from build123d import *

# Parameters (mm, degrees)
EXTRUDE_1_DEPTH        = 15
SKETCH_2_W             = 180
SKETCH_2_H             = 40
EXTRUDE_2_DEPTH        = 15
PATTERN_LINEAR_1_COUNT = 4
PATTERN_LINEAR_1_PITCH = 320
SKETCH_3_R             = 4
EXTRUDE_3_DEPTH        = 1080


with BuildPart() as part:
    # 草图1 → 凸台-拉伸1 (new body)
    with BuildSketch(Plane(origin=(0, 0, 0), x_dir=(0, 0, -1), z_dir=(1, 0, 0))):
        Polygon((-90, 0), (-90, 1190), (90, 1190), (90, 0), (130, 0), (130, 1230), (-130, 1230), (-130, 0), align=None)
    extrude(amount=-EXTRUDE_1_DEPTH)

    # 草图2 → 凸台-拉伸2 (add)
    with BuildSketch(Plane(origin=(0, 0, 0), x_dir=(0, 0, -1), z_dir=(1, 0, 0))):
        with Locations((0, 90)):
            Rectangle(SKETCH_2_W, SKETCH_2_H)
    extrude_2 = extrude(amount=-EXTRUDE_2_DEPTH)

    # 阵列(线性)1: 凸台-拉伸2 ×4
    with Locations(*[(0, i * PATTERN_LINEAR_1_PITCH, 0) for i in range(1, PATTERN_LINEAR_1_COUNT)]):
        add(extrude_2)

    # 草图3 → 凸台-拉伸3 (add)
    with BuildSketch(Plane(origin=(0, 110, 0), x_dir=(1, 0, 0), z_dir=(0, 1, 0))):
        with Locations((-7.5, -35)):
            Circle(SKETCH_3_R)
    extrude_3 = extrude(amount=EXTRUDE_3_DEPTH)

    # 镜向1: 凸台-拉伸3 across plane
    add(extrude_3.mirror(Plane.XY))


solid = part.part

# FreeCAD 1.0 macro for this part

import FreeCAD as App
import Part
import Sketcher
from FreeCAD import Vector
Q = App.Units.Quantity


def add_polygon(sketch, points):
    """Adds a closed chain of lines whose ends are joined by coincident constraints."""
    first, n = sketch.GeometryCount, len(points)
    for a, b in zip(points, points[1:] + points[:1]):
        sketch.addGeometry(Part.LineSegment(App.Vector(*a, 0), App.Vector(*b, 0)), False)
    for i in range(n):
        sketch.addConstraint(Sketcher.Constraint("Coincident", first + i, 2, first + (i + 1) % n, 1))

doc = App.newDocument("Part")
body = doc.addObject("PartDesign::Body", "Body")

# Sketch on YZ plane
sketch1 = body.newObject("Sketcher::SketchObject", "Sketch")
sketch1.AttachmentSupport = (doc.getObject("YZ_Plane"), [""])
sketch1.MapMode = "FlatFace"
add_polygon(sketch1, [(0, 90), (1190, 90), (1190, -90), (0, -90), (0, -130), (1230, -130), (1230, 130), (0, 130)])  # lines 0-7
sketch1.addConstraint([
    Sketcher.Constraint("Horizontal", 0),
    Sketcher.Constraint("Vertical", 1),
    Sketcher.Constraint("Horizontal", 2),
    Sketcher.Constraint("Vertical", 3),
    Sketcher.Constraint("Horizontal", 4),
    Sketcher.Constraint("Vertical", 5),
    Sketcher.Constraint("Horizontal", 6),
    Sketcher.Constraint("Vertical", 7),
    Sketcher.Constraint("Symmetric", 3, 2, 6, 2, -1, 1),
    Sketcher.Constraint("Symmetric", 2, 2, 7, 2, -1),
    Sketcher.Constraint("DistanceX", 0, 1, 0, 2, Q("1190 mm")),
    Sketcher.Constraint("DistanceX", 4, 1, 4, 2, Q("1230 mm")),
    Sketcher.Constraint("DistanceY", 1, 2, 1, 1, Q("180 mm")),
    Sketcher.Constraint("DistanceY", 3, 2, 3, 1, Q("40 mm")),
])
pad1 = body.newObject("PartDesign::Pad", "Pad")
pad1.Profile = sketch1
pad1.Length = 15
pad1.Reversed = True

# Sketch on YZ plane
sketch2 = body.newObject("Sketcher::SketchObject", "Sketch001")
sketch2.AttachmentSupport = (doc.getObject("YZ_Plane"), [""])
sketch2.MapMode = "FlatFace"
add_polygon(sketch2, [(110, 90), (70, 90), (70, -90), (110, -90)])  # lines 0-3
sketch2.addConstraint([
    Sketcher.Constraint("Horizontal", 0),
    Sketcher.Constraint("Vertical", 1),
    Sketcher.Constraint("Horizontal", 2),
    Sketcher.Constraint("Vertical", 3),
    Sketcher.Constraint("DistanceX", 0, 2, 0, 1, Q("40 mm")),
    Sketcher.Constraint("DistanceY", 1, 2, 1, 1, Q("180 mm")),
    Sketcher.Constraint("DistanceX", -1, 1, 0, 2, Q("70 mm")),
    Sketcher.Constraint("DistanceY", -1, 1, 0, 2, Q("90 mm")),
])
pad2 = body.newObject("PartDesign::Pad", "Pad001")
pad2.Profile = sketch2
pad2.Length = 15
pad2.Reversed = True
doc.recompute()

linearpattern = body.newObject("PartDesign::LinearPattern", "LinearPattern")
linearpattern.Originals = [pad2]
linearpattern.Direction = (doc.getObject("Y_Axis"), [""])
linearpattern.Mode = "offset"
linearpattern.Offset = 320
linearpattern.Occurrences = 4
body.Tip = linearpattern

# Sketch on XZ plane
sketch3 = body.newObject("Sketcher::SketchObject", "Sketch002")
sketch3.AttachmentSupport = (doc.getObject("XZ_Plane"), [""])
sketch3.MapMode = "FlatFace"
sketch3.AttachmentOffset = App.Placement(Vector(0, 0, -110), App.Rotation())
sketch3.addGeometry(Part.Circle(Vector(-7.5, 35, 0), Vector(0, 0, 1), 4), False)
sketch3.addConstraint([
    Sketcher.Constraint("Diameter", 0, Q("8 mm")),
    Sketcher.Constraint("DistanceY", -1, 1, 0, 3, Q("35 mm")),
    Sketcher.Constraint("DistanceX", 0, 3, -1, 1, Q("7.5 mm")),
])
pad3 = body.newObject("PartDesign::Pad", "Pad002")
pad3.Profile = sketch3
pad3.Length = 1080
pad3.Reversed = True
doc.recompute()

mirrored = body.newObject("PartDesign::Mirrored", "Mirrored")
mirrored.Originals = [pad3]
mirrored.MirrorPlane = (doc.getObject("XY_Plane"), [""])
body.Tip = mirrored

doc.recompute()
